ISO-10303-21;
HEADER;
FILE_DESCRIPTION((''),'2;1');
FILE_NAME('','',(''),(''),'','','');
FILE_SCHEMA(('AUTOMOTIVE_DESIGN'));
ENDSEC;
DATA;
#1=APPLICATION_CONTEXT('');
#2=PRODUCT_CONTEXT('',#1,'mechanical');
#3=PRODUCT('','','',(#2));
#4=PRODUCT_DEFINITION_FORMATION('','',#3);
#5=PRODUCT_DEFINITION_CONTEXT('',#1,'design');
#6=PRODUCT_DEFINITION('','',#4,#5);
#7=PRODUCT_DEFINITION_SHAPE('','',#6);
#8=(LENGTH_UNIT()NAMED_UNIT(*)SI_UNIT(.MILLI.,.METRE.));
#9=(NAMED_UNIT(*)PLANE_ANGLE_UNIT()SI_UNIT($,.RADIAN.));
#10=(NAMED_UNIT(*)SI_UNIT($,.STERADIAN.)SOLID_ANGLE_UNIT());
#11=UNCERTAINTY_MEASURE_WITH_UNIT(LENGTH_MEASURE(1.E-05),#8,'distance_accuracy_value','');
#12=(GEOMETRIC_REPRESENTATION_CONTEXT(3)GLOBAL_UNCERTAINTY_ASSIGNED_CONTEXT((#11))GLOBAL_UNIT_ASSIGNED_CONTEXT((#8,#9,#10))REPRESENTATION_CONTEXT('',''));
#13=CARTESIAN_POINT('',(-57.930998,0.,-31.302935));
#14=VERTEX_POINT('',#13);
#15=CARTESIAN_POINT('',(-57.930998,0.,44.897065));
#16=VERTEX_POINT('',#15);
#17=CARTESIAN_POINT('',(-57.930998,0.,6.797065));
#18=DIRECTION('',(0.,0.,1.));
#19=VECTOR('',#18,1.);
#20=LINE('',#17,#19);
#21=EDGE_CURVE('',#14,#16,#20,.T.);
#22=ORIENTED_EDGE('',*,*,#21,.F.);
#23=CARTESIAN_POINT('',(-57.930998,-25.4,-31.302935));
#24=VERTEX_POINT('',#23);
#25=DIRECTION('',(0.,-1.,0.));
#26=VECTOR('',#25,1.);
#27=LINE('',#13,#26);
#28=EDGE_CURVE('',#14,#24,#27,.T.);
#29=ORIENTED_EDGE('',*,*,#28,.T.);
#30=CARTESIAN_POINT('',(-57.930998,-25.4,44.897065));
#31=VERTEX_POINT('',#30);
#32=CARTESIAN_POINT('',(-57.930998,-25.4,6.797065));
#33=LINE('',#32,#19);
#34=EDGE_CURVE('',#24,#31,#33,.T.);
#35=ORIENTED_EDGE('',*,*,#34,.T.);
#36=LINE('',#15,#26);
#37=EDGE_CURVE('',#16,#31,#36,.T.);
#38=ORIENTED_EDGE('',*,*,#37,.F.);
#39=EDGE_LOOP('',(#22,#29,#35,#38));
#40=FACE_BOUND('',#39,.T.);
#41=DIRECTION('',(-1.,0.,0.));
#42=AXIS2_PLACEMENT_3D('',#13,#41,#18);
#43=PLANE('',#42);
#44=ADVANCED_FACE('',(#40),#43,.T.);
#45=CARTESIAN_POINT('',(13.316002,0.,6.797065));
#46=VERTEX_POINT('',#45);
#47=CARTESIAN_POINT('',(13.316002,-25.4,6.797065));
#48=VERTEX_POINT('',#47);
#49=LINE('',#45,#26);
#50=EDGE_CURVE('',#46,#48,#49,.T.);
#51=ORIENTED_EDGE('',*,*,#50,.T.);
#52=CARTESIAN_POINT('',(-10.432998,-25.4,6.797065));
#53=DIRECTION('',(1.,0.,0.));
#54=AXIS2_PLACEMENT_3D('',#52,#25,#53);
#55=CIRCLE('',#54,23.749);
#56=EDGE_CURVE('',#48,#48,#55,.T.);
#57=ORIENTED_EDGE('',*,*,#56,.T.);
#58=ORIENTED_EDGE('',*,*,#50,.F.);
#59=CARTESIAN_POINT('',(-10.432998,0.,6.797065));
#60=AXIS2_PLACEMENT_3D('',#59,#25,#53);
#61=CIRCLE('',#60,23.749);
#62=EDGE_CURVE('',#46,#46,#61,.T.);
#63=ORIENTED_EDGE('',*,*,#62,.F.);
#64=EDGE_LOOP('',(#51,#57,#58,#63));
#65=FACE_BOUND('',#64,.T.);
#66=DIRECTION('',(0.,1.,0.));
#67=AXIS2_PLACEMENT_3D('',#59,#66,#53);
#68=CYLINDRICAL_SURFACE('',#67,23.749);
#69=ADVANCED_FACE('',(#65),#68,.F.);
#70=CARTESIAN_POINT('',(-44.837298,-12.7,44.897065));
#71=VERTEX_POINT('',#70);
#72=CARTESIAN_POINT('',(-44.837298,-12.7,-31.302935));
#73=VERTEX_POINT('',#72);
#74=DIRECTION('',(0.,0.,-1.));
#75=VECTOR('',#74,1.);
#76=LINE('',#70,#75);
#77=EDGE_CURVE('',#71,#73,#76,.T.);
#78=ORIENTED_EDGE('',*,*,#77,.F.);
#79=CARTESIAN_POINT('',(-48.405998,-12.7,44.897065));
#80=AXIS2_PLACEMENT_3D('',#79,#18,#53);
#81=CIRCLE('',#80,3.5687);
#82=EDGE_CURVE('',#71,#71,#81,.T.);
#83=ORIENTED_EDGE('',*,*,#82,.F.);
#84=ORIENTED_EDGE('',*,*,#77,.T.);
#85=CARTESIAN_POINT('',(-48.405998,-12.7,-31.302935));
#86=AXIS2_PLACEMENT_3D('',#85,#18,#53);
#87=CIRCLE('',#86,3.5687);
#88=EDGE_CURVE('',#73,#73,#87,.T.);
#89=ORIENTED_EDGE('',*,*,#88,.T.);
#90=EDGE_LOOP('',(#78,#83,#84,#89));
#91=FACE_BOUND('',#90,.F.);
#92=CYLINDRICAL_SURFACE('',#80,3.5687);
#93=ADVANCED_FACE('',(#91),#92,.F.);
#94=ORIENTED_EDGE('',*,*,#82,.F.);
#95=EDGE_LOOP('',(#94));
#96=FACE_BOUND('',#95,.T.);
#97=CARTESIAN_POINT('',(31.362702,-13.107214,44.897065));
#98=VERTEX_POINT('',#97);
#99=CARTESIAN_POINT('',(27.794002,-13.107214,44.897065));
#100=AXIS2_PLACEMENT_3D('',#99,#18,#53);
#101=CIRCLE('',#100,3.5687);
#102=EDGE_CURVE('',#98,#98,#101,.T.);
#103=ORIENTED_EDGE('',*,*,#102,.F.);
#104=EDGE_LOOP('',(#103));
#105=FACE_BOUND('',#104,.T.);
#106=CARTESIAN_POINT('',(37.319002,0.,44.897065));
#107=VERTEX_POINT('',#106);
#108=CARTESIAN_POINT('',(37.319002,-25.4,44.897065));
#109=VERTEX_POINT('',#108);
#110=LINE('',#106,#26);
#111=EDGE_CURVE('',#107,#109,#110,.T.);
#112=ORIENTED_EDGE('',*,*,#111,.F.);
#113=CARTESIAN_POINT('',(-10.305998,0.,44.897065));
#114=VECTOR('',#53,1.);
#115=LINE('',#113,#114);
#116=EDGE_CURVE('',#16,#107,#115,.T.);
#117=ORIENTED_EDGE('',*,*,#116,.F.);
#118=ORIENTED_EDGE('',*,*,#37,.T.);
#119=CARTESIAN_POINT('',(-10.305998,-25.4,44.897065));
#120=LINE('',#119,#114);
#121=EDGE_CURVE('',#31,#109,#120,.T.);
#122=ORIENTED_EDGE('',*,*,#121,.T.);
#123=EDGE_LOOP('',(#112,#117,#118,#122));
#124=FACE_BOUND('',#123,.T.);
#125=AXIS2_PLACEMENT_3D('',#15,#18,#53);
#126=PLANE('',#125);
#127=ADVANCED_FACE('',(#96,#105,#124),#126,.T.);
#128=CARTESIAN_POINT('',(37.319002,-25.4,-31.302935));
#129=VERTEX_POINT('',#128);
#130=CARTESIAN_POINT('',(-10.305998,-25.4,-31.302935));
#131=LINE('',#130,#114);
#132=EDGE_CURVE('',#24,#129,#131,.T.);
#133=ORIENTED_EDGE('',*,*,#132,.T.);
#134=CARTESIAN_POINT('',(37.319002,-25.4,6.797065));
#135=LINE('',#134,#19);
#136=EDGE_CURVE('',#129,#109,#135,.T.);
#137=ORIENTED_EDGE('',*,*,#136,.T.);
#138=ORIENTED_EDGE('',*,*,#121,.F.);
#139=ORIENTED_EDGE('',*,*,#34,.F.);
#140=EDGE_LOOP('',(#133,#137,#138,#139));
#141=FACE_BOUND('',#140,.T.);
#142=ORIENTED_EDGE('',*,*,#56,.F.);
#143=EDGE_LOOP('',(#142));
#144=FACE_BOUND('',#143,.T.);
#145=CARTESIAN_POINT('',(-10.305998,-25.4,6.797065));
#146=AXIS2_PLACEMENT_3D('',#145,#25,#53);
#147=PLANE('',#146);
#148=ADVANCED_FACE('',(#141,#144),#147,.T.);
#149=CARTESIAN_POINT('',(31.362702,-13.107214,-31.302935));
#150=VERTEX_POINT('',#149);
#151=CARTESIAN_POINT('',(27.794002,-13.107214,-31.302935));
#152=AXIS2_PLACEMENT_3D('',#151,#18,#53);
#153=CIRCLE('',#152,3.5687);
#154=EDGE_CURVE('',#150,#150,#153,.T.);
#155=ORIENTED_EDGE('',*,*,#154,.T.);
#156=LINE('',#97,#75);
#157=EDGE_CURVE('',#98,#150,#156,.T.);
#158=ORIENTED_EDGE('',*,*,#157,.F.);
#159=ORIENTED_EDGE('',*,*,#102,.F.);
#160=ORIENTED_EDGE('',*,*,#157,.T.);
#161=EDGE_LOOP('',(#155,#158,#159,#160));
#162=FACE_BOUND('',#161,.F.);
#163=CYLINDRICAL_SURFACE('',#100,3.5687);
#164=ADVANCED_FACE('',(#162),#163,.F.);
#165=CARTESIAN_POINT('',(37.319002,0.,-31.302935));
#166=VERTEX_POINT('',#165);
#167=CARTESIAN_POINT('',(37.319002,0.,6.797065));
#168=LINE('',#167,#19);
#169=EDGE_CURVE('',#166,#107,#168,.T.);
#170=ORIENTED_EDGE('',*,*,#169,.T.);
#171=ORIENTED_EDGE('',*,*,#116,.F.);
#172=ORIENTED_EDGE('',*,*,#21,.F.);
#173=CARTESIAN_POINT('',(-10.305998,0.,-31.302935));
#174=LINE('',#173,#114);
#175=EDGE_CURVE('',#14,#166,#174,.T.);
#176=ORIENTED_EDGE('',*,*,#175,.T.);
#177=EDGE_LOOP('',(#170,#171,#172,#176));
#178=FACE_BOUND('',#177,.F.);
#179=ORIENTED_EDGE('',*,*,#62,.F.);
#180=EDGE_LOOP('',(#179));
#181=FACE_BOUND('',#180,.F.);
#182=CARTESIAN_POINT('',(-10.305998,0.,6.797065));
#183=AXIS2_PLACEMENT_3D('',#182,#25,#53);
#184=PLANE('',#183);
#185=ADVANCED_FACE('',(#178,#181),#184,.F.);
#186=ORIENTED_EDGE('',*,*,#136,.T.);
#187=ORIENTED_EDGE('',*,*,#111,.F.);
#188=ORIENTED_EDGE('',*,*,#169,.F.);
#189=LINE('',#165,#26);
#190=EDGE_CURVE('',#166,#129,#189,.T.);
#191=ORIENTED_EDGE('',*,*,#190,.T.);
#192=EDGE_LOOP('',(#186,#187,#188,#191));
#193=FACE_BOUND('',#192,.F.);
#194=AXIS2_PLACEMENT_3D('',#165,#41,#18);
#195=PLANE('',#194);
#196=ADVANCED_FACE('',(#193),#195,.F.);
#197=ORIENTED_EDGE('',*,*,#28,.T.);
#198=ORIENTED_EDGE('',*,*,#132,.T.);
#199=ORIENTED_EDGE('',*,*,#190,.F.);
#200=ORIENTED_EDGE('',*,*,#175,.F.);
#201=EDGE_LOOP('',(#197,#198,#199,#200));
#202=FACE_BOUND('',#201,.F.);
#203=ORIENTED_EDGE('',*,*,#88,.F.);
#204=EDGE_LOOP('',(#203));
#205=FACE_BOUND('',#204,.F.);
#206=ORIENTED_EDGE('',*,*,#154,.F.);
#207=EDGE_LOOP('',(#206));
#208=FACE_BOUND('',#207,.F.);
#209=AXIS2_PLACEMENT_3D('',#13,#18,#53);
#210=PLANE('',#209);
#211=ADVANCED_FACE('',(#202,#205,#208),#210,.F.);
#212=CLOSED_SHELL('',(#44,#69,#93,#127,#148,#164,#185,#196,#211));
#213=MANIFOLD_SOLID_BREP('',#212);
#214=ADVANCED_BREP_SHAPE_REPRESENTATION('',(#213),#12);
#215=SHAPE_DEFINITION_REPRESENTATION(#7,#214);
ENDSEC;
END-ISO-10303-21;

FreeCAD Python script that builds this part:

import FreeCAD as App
import Part
import Sketcher
from FreeCAD import Vector
Q = App.Units.Quantity

doc = App.newDocument("Part")
params = doc.addObject("Spreadsheet::Sheet", "Params")
for row, (alias, value) in enumerate([
    ("sketch1_diameter", "1.87 in"),
    ("sketch1_height", "3 in"),
    ("sketch1_width", "3.75 in"),
    ("pad1_length", "1 in"),
    ("sketch2_diameter", "0.281 in"),
], start=1):
    params.set(f"A{row}", alias)
    params.set(f"B{row}", "=" + value)
    params.setAlias(f"B{row}", alias)

body = doc.addObject("PartDesign::Body", "Body")

# Sketch on XZ plane
sketch1 = body.newObject("Sketcher::SketchObject", "Sketch")
sketch1.AttachmentSupport = (doc.getObject("XZ_Plane"), [""])
sketch1.MapMode = "FlatFace"
sketch1.addGeometry([
    Part.LineSegment(Vector(-58, 45, 0), Vector(-58, -31, 0)),  # 0
    Part.LineSegment(Vector(-58, -31, 0), Vector(37, -31, 0)),  # 1
    Part.LineSegment(Vector(37, -31, 0), Vector(37, 45, 0)),  # 2
    Part.LineSegment(Vector(37, 45, 0), Vector(-58, 45, 0)),  # 3
    Part.Circle(Vector(-10, 7, 0), Vector(0, 0, 1), 24),  # 4
], False)
sketch1.addConstraint([
    Sketcher.Constraint("Coincident", 0, 2, 1, 1),
    Sketcher.Constraint("Coincident", 1, 2, 2, 1),
    Sketcher.Constraint("Coincident", 2, 2, 3, 1),
    Sketcher.Constraint("Coincident", 3, 2, 0, 1),
    Sketcher.Constraint("Vertical", 0),
    Sketcher.Constraint("Horizontal", 1),
    Sketcher.Constraint("Vertical", 2),
    Sketcher.Constraint("Horizontal", 3),
    Sketcher.Constraint("Diameter", 4, Q("1.87 in")),
    Sketcher.Constraint("DistanceY", 0, 2, 0, 1, Q("3 in")),
    Sketcher.Constraint("DistanceX", 1, 1, 1, 2, Q("3.75 in")),
    Sketcher.Constraint("DistanceY", 0, 2, 4, 3, Q("1.5 in")),
    Sketcher.Constraint("DistanceX", 0, 2, 4, 3, Q("1.87 in")),
    Sketcher.Constraint("DistanceX", 0, 2, -1, 1, 57.930998),
    Sketcher.Constraint("DistanceY", -1, 1, 4, 3, 6.797065),
])
sketch1.setExpression("Constraints[8]", "Params.sketch1_diameter")
sketch1.setExpression("Constraints[9]", "Params.sketch1_height")
sketch1.setExpression("Constraints[10]", "Params.sketch1_width")
pad1 = body.newObject("PartDesign::Pad", "Pad")
pad1.Profile = sketch1
pad1.setExpression("Length", "Params.pad1_length")

# Sketch on XY plane
sketch2 = body.newObject("Sketcher::SketchObject", "Sketch001")
sketch2.AttachmentSupport = (doc.getObject("XY_Plane"), [""])
sketch2.MapMode = "FlatFace"
sketch2.AttachmentOffset = App.Placement(Vector(0, 0, 44.897065), App.Rotation())
sketch2.addGeometry([
    Part.Circle(Vector(-48.4, -12.7, 0), Vector(0, 0, 1), 3.6),
    Part.Circle(Vector(27.8, -13.1, 0), Vector(0, 0, 1), 3.6),
], False)
sketch2.addConstraint([
    Sketcher.Constraint("Equal", 0, 1),
    Sketcher.Constraint("Diameter", 0, Q("0.281 in")),
    Sketcher.Constraint("DistanceX", 0, 3, 1, 3, Q("3 in")),
    Sketcher.Constraint("DistanceY", 0, 3, -1, 1, Q("0.5 in")),
    Sketcher.Constraint("DistanceX", -1, 1, 1, 3, 27.794002),
    Sketcher.Constraint("DistanceY", 1, 3, -1, 1, 13.107214),
])
sketch2.setExpression("Constraints[1]", "Params.sketch2_diameter")
pocket1 = body.newObject("PartDesign::Pocket", "Pocket")
pocket1.Profile = sketch2
pocket1.Type = "ThroughAll"

doc.recompute()
